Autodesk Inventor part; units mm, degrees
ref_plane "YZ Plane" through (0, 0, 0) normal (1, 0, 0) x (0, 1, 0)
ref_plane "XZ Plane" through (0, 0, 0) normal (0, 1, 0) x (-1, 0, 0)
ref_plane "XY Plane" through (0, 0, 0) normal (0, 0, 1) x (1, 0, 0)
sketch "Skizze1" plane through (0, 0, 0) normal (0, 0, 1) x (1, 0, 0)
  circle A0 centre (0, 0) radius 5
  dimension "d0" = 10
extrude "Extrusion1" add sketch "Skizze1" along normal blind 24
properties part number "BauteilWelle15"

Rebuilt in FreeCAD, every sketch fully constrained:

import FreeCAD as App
import Part
import Sketcher
from FreeCAD import Vector
Q = App.Units.Quantity

doc = App.newDocument("Part")
body = doc.addObject("PartDesign::Body", "Body")

sketch1 = body.newObject("Sketcher::SketchObject", "Sketch")
sketch1.AttachmentSupport = (doc.getObject("XY_Plane"), [""])
sketch1.MapMode = "FlatFace"
sketch1.addGeometry(Part.Circle(Vector(0, 0, 0), Vector(0, 0, 1), 5), False)
sketch1.addConstraint([
    Sketcher.Constraint("Coincident", 0, 3, -1, 1),
    Sketcher.Constraint("Diameter", 0, Q("10 mm")),
])
pad1 = body.newObject("PartDesign::Pad", "Pad")
pad1.Profile = sketch1
pad1.Length = 24

doc.recompute()
